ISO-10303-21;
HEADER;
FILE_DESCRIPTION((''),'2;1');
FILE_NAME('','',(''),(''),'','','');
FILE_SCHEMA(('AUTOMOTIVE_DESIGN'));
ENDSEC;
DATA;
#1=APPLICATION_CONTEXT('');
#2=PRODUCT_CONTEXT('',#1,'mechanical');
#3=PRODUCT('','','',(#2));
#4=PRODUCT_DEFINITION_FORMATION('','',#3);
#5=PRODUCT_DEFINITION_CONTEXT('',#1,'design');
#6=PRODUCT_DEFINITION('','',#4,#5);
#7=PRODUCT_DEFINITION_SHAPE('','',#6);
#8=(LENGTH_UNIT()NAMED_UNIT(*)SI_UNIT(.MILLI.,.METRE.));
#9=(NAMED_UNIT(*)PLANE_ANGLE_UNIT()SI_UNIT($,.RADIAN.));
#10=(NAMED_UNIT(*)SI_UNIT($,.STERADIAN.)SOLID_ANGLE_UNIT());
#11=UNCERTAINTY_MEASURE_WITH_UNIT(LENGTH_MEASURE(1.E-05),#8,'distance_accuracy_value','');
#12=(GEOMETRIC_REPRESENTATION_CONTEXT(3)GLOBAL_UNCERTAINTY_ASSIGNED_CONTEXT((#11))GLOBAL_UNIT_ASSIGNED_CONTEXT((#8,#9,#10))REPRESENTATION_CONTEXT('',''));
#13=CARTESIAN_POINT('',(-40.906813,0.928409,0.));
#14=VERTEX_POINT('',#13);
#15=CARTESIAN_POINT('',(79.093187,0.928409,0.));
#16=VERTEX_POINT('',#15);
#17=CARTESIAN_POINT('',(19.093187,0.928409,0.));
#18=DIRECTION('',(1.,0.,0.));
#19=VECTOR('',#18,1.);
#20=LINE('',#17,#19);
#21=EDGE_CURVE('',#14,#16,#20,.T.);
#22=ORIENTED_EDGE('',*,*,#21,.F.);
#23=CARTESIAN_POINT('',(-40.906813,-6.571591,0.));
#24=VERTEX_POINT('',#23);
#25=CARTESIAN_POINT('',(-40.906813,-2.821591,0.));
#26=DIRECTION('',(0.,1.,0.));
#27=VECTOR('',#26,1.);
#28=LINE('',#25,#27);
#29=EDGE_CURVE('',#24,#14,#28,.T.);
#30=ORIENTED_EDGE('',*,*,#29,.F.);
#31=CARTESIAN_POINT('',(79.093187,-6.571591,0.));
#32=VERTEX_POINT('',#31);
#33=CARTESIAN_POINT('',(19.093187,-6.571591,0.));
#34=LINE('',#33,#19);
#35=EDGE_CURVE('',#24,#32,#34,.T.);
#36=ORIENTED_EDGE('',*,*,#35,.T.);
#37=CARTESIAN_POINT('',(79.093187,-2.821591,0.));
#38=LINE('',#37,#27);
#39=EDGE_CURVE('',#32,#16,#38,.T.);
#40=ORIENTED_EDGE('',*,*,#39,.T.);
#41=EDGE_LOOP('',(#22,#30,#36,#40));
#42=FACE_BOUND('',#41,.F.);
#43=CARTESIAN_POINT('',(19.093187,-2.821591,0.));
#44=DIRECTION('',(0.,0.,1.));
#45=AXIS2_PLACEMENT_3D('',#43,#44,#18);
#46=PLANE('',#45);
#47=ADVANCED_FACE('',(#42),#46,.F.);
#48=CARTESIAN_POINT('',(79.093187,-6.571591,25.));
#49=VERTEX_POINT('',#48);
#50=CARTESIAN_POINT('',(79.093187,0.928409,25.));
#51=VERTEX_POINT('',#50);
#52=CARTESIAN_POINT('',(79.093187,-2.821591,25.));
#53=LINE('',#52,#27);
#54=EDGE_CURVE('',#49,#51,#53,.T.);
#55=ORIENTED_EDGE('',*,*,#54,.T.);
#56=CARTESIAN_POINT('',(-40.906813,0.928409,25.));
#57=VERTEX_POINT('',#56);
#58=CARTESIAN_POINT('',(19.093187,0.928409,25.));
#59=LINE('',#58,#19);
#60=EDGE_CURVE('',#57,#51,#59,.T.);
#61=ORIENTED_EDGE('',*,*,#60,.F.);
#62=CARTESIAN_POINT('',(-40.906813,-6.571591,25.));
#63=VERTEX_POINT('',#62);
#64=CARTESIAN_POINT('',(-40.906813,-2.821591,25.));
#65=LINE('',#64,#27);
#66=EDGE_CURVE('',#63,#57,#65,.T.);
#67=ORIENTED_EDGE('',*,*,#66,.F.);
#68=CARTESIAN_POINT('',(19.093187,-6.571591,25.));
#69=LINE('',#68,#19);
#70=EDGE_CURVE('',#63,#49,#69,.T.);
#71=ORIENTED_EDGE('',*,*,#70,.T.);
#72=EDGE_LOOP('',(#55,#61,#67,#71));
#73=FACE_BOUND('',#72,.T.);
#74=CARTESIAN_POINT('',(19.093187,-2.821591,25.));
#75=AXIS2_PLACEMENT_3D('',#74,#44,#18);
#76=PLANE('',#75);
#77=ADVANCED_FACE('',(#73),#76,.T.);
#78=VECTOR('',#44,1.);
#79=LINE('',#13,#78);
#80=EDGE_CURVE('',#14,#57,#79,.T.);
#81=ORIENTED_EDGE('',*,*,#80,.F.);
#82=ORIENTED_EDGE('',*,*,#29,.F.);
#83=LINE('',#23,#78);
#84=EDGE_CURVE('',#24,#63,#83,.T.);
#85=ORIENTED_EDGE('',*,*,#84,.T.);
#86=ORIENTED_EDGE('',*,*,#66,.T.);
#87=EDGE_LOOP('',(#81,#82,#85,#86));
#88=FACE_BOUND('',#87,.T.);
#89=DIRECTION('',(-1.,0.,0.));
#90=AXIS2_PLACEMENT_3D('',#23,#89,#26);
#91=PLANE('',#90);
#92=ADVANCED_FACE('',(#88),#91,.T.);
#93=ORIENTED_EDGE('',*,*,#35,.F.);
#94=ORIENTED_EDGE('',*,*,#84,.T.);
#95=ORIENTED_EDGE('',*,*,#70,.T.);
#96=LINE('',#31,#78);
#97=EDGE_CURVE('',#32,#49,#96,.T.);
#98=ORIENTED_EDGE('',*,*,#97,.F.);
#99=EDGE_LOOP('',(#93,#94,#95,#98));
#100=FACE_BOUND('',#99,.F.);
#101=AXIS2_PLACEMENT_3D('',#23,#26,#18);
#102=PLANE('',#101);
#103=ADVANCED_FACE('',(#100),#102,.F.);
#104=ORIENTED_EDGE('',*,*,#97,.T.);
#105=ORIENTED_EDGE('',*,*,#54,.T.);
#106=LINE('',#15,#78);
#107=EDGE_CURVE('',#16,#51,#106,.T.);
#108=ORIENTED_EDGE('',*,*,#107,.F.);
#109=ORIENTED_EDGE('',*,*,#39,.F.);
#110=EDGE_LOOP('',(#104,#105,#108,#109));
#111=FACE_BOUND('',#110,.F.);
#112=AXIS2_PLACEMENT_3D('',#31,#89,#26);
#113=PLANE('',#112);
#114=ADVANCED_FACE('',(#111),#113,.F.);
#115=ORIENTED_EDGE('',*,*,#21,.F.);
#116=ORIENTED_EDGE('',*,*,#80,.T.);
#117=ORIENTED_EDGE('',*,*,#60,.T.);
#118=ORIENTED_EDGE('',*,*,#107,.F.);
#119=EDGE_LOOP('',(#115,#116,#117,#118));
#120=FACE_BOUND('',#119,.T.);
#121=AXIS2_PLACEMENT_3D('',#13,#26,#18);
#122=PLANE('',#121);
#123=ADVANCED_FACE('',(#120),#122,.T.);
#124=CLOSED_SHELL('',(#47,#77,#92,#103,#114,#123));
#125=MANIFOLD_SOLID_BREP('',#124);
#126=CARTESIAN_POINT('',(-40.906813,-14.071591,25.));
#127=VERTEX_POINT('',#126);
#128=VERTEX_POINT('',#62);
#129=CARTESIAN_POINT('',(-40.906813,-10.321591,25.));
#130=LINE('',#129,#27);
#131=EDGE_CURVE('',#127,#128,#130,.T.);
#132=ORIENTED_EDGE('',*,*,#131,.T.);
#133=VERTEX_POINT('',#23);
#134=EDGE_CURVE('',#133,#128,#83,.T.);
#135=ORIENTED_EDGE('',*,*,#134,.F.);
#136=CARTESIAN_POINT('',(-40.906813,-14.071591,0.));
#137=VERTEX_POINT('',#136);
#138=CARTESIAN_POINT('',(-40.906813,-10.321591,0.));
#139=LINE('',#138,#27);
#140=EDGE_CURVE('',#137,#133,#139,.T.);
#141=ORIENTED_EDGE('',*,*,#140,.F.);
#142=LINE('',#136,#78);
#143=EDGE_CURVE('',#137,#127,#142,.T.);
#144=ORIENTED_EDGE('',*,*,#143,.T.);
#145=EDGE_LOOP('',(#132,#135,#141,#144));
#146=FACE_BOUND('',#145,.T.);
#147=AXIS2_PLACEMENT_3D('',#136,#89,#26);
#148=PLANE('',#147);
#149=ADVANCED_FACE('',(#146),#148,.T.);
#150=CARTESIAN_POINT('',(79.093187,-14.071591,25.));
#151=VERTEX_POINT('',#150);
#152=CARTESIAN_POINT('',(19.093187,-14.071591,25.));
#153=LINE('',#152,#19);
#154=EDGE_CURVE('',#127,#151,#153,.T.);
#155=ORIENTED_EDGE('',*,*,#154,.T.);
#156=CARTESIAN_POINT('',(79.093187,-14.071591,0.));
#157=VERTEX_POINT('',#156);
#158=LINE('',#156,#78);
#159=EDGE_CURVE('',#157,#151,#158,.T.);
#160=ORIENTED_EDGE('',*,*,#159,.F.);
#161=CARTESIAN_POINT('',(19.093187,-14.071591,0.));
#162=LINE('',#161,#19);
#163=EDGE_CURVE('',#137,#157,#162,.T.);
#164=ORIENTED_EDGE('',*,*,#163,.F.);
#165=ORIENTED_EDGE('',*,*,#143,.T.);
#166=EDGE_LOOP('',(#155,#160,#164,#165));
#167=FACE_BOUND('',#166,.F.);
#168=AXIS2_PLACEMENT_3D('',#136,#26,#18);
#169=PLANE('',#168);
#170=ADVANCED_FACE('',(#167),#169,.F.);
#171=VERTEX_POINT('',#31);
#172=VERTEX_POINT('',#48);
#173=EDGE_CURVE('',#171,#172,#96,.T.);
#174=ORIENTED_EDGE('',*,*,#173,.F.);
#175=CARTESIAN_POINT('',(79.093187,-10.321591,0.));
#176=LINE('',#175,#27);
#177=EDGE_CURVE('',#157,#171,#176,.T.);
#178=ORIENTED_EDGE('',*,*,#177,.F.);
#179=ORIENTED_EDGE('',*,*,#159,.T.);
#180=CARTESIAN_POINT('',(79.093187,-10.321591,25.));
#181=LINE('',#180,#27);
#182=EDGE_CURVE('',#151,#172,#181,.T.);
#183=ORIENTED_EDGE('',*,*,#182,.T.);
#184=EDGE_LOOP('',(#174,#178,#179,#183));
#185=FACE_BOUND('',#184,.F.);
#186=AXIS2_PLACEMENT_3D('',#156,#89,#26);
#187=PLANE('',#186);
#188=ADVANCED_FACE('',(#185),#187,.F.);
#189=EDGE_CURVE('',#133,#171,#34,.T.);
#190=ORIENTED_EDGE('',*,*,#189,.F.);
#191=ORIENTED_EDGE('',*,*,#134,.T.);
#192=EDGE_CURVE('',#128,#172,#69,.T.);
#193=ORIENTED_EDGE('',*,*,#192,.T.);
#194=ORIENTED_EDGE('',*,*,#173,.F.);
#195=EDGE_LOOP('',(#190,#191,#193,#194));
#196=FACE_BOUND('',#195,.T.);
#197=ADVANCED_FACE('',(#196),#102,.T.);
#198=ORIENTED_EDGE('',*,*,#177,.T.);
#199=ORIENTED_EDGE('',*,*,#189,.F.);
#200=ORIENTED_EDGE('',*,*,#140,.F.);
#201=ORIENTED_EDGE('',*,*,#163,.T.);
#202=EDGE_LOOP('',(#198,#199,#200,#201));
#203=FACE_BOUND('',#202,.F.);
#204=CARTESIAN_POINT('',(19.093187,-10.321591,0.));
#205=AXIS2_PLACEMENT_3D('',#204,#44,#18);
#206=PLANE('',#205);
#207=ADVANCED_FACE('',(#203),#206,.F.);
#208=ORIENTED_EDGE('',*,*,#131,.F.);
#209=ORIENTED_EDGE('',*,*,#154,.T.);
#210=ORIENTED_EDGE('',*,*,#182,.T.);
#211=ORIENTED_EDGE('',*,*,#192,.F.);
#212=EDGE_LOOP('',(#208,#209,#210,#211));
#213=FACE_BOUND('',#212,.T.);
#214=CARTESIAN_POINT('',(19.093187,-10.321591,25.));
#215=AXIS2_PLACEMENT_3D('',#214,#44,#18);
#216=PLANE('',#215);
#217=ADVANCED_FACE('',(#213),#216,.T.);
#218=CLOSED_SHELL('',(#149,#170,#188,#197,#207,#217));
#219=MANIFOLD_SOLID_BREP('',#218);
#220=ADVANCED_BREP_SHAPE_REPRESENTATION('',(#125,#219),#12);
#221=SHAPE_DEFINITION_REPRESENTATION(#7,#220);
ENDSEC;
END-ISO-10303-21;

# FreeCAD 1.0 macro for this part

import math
import FreeCAD as App
import Part
import Sketcher

V = App.Vector
Q = App.Units.Quantity


def add_polygon(sketch, points):
    """Adds a closed chain of lines whose ends are joined by coincident constraints."""
    first, n = sketch.GeometryCount, len(points)
    for a, b in zip(points, points[1:] + points[:1]):
        sketch.addGeometry(Part.LineSegment(App.Vector(*a, 0), App.Vector(*b, 0)), False)
    for i in range(n):
        sketch.addConstraint(Sketcher.Constraint("Coincident", first + i, 2, first + (i + 1) % n, 1))

doc = App.newDocument("Part")
body = doc.addObject("PartDesign::Body", "Body")

sketch1 = doc.addObject("Sketcher::SketchObject", "Sketch")
body.addObject(sketch1)
sketch1.AttachmentSupport = (doc.XY_Plane, [""])
sketch1.MapMode = "FlatFace"
sketch1.addGeometry(Part.LineSegment(V(-55.511503, -1.267301, 0), V(-60.511503, -1.267301, 0)), False)
sketch1.addGeometry(Part.LineSegment(V(-60.511503, -1.267301, 0), V(-60.511503, -6.267301, 0)), False)
sketch1.addGeometry(Part.ArcOfCircle(Part.Circle(V(-55.511503, -6.267301, 0), V(0, 0, 1), 5), math.radians(90), math.radians(180)), False)
sketch1.addConstraint(Sketcher.Constraint("Coincident", 0, 2, 1, 1))
sketch1.addConstraint(Sketcher.Constraint("Tangent", 1, 2, 2, 2))
sketch1.addConstraint(Sketcher.Constraint("Tangent", 2, 1, 0, 1))
sketch1.addConstraint(Sketcher.Constraint("Horizontal", 0))
sketch1.addConstraint(Sketcher.Constraint("Vertical", 1))
sketch1.addConstraint(Sketcher.Constraint("Radius", 2, Q("5 mm")))
sketch1.addConstraint(Sketcher.Constraint("DistanceY", 2, 3, -1, 1, Q("6.267301 mm")))
sketch1.addConstraint(Sketcher.Constraint("DistanceX", 2, 3, -1, 1, Q("55.511503 mm")))
pad1 = doc.addObject("PartDesign::Pad", "Pad")
body.addObject(pad1)
pad1.Profile = sketch1
pad1.Length = 25
body2 = doc.addObject("PartDesign::Body", "Body001")

sketch2 = doc.addObject("Sketcher::SketchObject", "Sketch001")
body2.addObject(sketch2)
sketch2.AttachmentSupport = (doc.getObject("XY_Plane001"), [""])
sketch2.MapMode = "FlatFace"
sketch2.addGeometry(Part.LineSegment(V(-50.511503, -1.267301, 0), V(-55.511503, -1.267301, 0)), False)
sketch2.addGeometry(Part.ArcOfCircle(Part.Circle(V(-55.511503, -6.267301, 0), V(0, 0, 1), 5), math.radians(0), math.radians(90)), False)
sketch2.addGeometry(Part.LineSegment(V(-50.511503, -6.267301, 0), V(-50.511503, -1.267301, 0)), False)
sketch2.addConstraint(Sketcher.Constraint("Tangent", 0, 2, 1, 2))
sketch2.addConstraint(Sketcher.Constraint("Tangent", 1, 1, 2, 1))
sketch2.addConstraint(Sketcher.Constraint("Coincident", 2, 2, 0, 1))
sketch2.addConstraint(Sketcher.Constraint("Horizontal", 0))
sketch2.addConstraint(Sketcher.Constraint("Vertical", 2))
sketch2.addConstraint(Sketcher.Constraint("Radius", 1, Q("5 mm")))
sketch2.addConstraint(Sketcher.Constraint("DistanceY", 1, 3, -1, 1, Q("6.267301 mm")))
sketch2.addConstraint(Sketcher.Constraint("DistanceX", 1, 3, -1, 1, Q("55.511503 mm")))
pad2 = doc.addObject("PartDesign::Pad", "Pad001")
body2.addObject(pad2)
pad2.Profile = sketch2
pad2.Length = 25
body3 = doc.addObject("PartDesign::Body", "Body002")

sketch3 = doc.addObject("Sketcher::SketchObject", "Sketch002")
body3.addObject(sketch3)
sketch3.AttachmentSupport = (doc.getObject("XY_Plane002"), [""])
sketch3.MapMode = "FlatFace"
sketch3.addGeometry(Part.ArcOfCircle(Part.Circle(V(-55.511503, -6.267301, 0), V(0, 0, 1), 5), math.radians(-180), math.radians(-90)), False)
sketch3.addGeometry(Part.LineSegment(V(-60.511503, -6.267301, 0), V(-60.511503, -11.267301, 0)), False)
sketch3.addGeometry(Part.LineSegment(V(-60.511503, -11.267301, 0), V(-55.511503, -11.267301, 0)), False)
sketch3.addConstraint(Sketcher.Constraint("Tangent", 0, 1, 1, 1))
sketch3.addConstraint(Sketcher.Constraint("Coincident", 1, 2, 2, 1))
sketch3.addConstraint(Sketcher.Constraint("Tangent", 2, 2, 0, 2))
sketch3.addConstraint(Sketcher.Constraint("Vertical", 1))
sketch3.addConstraint(Sketcher.Constraint("Horizontal", 2))
sketch3.addConstraint(Sketcher.Constraint("Radius", 0, Q("5 mm")))
sketch3.addConstraint(Sketcher.Constraint("DistanceY", 0, 3, -1, 1, Q("6.267301 mm")))
sketch3.addConstraint(Sketcher.Constraint("DistanceX", 0, 3, -1, 1, Q("55.511503 mm")))
pad3 = doc.addObject("PartDesign::Pad", "Pad002")
body3.addObject(pad3)
pad3.Profile = sketch3
pad3.Length = 25
body4 = doc.addObject("PartDesign::Body", "Body003")

sketch4 = doc.addObject("Sketcher::SketchObject", "Sketch003")
body4.addObject(sketch4)
sketch4.AttachmentSupport = (doc.getObject("XY_Plane003"), [""])
sketch4.MapMode = "FlatFace"
sketch4.addGeometry(Part.LineSegment(V(-50.511503, -11.267301, 0), V(-50.511503, -6.267301, 0)), False)
sketch4.addGeometry(Part.ArcOfCircle(Part.Circle(V(-55.511503, -6.267301, 0), V(0, 0, 1), 5), math.radians(-90), math.radians(0)), False)
sketch4.addGeometry(Part.LineSegment(V(-55.511503, -11.267301, 0), V(-50.511503, -11.267301, 0)), False)
sketch4.addConstraint(Sketcher.Constraint("Tangent", 0, 2, 1, 2))
sketch4.addConstraint(Sketcher.Constraint("Tangent", 1, 1, 2, 1))
sketch4.addConstraint(Sketcher.Constraint("Coincident", 2, 2, 0, 1))
sketch4.addConstraint(Sketcher.Constraint("Vertical", 0))
sketch4.addConstraint(Sketcher.Constraint("Horizontal", 2))
sketch4.addConstraint(Sketcher.Constraint("Radius", 1, Q("5 mm")))
sketch4.addConstraint(Sketcher.Constraint("DistanceY", 1, 3, -1, 1, Q("6.267301 mm")))
sketch4.addConstraint(Sketcher.Constraint("DistanceX", 1, 3, -1, 1, Q("55.511503 mm")))
pad4 = doc.addObject("PartDesign::Pad", "Pad003")
body4.addObject(pad4)
pad4.Profile = sketch4
pad4.Length = 25
body5 = doc.addObject("PartDesign::Body", "Body004")

sketch5 = doc.addObject("Sketcher::SketchObject", "Sketch004")
body5.addObject(sketch5)
sketch5.AttachmentSupport = (doc.getObject("XY_Plane004"), [""])
sketch5.MapMode = "FlatFace"
add_polygon(sketch5, [(-40.906813, -6.571591), (-40.906813, -14.071591), (79.093187, -14.071591), (79.093187, -6.571591)])
sketch5.addConstraint(Sketcher.Constraint("Vertical", 0))
sketch5.addConstraint(Sketcher.Constraint("Horizontal", 1))
sketch5.addConstraint(Sketcher.Constraint("Vertical", 2))
sketch5.addConstraint(Sketcher.Constraint("Horizontal", 3))
sketch5.addConstraint(Sketcher.Constraint("DistanceX", 1, 1, 1, 2, Q("120 mm")))
sketch5.addConstraint(Sketcher.Constraint("DistanceY", 0, 2, 0, 1, Q("7.5 mm")))
sketch5.addConstraint(Sketcher.Constraint("DistanceY", 0, 2, -1, 1, Q("14.071591 mm")))
sketch5.addConstraint(Sketcher.Constraint("DistanceX", 0, 2, -1, 1, Q("40.906813 mm")))
pad5 = doc.addObject("PartDesign::Pad", "Pad004")
body5.addObject(pad5)
pad5.Profile = sketch5
pad5.Length = 25
body6 = doc.addObject("PartDesign::Body", "Body005")

sketch6 = doc.addObject("Sketcher::SketchObject", "Sketch005")
body6.addObject(sketch6)
sketch6.AttachmentSupport = (doc.getObject("XY_Plane005"), [""])
sketch6.MapMode = "FlatFace"
sketch6.addGeometry(Part.ArcOfCircle(Part.Circle(V(-55.511503, -6.267301, 0), V(0, 0, 1), 5), math.radians(0), math.radians(90)), False)
sketch6.addGeometry(Part.ArcOfCircle(Part.Circle(V(-55.511503, -6.267301, 0), V(0, 0, 1), 5), math.radians(90), math.radians(180)), False)
sketch6.addGeometry(Part.ArcOfCircle(Part.Circle(V(-55.511503, -6.267301, 0), V(0, 0, 1), 5), math.radians(-180), math.radians(-90)), False)
sketch6.addGeometry(Part.ArcOfCircle(Part.Circle(V(-55.511503, -6.267301, 0), V(0, 0, 1), 5), math.radians(-90), math.radians(0)), False)
sketch6.addConstraint(Sketcher.Constraint("Tangent", 0, 2, 1, 1))
sketch6.addConstraint(Sketcher.Constraint("Tangent", 1, 2, 2, 1))
sketch6.addConstraint(Sketcher.Constraint("Tangent", 2, 2, 3, 1))
sketch6.addConstraint(Sketcher.Constraint("Tangent", 3, 2, 0, 1))
sketch6.addConstraint(Sketcher.Constraint("Equal", 0, 1))
sketch6.addConstraint(Sketcher.Constraint("Horizontal", 3, 3, 1, 2))
sketch6.addConstraint(Sketcher.Constraint("Horizontal", 1, 2, 3, 2))
sketch6.addConstraint(Sketcher.Constraint("Vertical", 3, 3, 0, 2))
sketch6.addConstraint(Sketcher.Constraint("Vertical", 0, 2, 2, 2))
sketch6.addConstraint(Sketcher.Constraint("Radius", 0, Q("5 mm")))
sketch6.addConstraint(Sketcher.Constraint("DistanceY", 0, 3, -1, 1, Q("6.267301 mm")))
sketch6.addConstraint(Sketcher.Constraint("DistanceX", 0, 3, -1, 1, Q("55.511503 mm")))
pad6 = doc.addObject("PartDesign::Pad", "Pad005")
body6.addObject(pad6)
pad6.Profile = sketch6
pad6.Length = 25
body7 = doc.addObject("PartDesign::Body", "Body006")

sketch7 = doc.addObject("Sketcher::SketchObject", "Sketch006")
body7.addObject(sketch7)
sketch7.AttachmentSupport = (doc.getObject("XY_Plane006"), [""])
sketch7.MapMode = "FlatFace"
add_polygon(sketch7, [(-40.906813, 0.928409), (-40.906813, -6.571591), (79.093187, -6.571591), (79.093187, 0.928409)])
sketch7.addConstraint(Sketcher.Constraint("Vertical", 0))
sketch7.addConstraint(Sketcher.Constraint("Horizontal", 1))
sketch7.addConstraint(Sketcher.Constraint("Vertical", 2))
sketch7.addConstraint(Sketcher.Constraint("Horizontal", 3))
sketch7.addConstraint(Sketcher.Constraint("DistanceX", 1, 1, 1, 2, Q("120 mm")))
sketch7.addConstraint(Sketcher.Constraint("DistanceY", 0, 2, 0, 1, Q("7.5 mm")))
sketch7.addConstraint(Sketcher.Constraint("DistanceY", 0, 2, -1, 1, Q("6.571591 mm")))
sketch7.addConstraint(Sketcher.Constraint("DistanceX", 0, 2, -1, 1, Q("40.906813 mm")))
pad7 = doc.addObject("PartDesign::Pad", "Pad006")
body7.addObject(pad7)
pad7.Profile = sketch7
pad7.Length = 25
body.Visibility = False
body2.Visibility = False
body3.Visibility = False
body4.Visibility = False
body6.Visibility = False

doc.recompute()
